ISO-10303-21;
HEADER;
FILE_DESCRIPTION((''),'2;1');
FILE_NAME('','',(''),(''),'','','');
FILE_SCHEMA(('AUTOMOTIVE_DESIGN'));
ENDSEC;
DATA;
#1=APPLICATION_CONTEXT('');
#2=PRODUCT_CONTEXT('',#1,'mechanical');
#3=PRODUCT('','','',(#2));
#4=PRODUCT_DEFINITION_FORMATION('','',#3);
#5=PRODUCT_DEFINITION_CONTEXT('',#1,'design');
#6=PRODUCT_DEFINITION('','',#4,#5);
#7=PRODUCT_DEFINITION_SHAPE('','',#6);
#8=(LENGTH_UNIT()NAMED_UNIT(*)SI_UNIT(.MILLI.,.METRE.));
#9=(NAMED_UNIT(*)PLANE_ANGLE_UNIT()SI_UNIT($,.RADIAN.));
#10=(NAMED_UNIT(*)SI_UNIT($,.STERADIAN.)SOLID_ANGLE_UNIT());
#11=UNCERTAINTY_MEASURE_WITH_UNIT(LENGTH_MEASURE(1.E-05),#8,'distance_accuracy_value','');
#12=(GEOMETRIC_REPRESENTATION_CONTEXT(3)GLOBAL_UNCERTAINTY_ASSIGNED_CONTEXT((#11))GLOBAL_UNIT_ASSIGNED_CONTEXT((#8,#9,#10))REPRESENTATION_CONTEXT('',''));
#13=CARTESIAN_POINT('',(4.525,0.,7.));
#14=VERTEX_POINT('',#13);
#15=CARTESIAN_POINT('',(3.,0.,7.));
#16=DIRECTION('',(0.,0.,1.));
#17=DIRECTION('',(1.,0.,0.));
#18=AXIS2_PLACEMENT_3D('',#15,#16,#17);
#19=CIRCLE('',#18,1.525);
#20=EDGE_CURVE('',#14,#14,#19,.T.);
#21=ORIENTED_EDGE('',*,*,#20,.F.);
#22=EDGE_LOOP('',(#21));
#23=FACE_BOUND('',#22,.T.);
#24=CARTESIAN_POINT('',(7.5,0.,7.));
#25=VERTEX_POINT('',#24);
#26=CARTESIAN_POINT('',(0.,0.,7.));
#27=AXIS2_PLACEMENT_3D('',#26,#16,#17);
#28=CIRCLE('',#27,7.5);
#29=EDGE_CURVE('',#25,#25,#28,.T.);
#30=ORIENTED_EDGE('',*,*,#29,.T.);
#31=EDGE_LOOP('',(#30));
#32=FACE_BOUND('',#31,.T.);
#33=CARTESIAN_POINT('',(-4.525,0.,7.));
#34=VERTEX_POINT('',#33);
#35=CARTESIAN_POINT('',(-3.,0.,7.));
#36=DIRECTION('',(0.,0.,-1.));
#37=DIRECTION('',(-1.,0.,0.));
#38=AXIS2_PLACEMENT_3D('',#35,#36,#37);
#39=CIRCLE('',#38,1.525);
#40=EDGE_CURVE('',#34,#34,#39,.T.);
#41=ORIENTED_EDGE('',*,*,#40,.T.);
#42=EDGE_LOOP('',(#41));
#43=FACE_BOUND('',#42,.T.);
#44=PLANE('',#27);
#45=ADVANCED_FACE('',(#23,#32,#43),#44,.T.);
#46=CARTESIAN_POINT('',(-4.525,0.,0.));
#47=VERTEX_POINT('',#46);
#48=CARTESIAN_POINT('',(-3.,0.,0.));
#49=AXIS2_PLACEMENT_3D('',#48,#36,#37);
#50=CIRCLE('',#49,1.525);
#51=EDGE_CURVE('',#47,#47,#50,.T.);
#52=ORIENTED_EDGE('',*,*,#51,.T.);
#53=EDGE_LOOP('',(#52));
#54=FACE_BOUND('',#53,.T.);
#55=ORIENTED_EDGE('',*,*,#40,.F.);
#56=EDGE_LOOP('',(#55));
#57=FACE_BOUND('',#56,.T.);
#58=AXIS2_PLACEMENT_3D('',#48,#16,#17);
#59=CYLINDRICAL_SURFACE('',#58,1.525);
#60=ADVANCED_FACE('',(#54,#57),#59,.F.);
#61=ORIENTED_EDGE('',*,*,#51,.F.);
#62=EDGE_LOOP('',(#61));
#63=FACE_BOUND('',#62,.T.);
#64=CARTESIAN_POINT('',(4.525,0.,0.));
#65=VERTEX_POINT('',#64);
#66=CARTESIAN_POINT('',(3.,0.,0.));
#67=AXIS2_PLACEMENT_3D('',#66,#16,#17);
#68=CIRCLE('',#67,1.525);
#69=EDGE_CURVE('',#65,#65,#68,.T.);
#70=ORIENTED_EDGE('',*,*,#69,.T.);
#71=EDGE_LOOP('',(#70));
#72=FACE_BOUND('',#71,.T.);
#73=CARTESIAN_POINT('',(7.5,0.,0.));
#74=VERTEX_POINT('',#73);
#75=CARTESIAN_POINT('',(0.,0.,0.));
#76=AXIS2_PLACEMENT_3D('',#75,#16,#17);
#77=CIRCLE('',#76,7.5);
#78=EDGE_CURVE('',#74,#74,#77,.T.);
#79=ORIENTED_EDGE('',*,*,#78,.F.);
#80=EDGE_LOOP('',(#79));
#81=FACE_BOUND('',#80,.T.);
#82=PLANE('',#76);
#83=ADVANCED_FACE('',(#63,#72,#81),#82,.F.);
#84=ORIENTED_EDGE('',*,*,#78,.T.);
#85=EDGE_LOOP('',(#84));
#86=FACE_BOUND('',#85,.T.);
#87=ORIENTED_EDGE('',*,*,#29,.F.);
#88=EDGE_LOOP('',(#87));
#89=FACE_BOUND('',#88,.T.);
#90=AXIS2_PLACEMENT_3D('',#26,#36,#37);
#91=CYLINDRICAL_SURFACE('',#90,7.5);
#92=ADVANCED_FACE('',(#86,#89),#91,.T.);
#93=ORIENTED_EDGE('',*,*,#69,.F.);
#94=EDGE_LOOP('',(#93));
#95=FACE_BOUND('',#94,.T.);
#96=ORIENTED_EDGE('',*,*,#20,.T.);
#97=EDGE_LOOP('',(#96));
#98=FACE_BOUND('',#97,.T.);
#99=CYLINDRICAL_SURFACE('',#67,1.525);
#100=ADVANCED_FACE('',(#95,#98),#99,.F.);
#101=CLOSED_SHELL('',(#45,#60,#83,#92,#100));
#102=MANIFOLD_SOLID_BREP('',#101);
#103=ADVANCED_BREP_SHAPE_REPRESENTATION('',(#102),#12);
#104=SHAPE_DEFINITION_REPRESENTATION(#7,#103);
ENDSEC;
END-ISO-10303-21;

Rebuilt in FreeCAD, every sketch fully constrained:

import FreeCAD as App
import Part
import Sketcher
from FreeCAD import Vector
Q = App.Units.Quantity

doc = App.newDocument("Part")
body = doc.addObject("PartDesign::Body", "Body")

sketch1 = body.newObject("Sketcher::SketchObject", "Sketch")
sketch1.AttachmentSupport = (doc.getObject("XY_Plane"), [""])
sketch1.MapMode = "FlatFace"
sketch1.addGeometry(Part.Circle(Vector(0, 0, 0), Vector(0, 0, 1), 8), False)
sketch1.addConstraint([
    Sketcher.Constraint("Coincident", 0, 3, -1, 1),
    Sketcher.Constraint("Diameter", 0, Q("15 mm")),
])
pad1 = body.newObject("PartDesign::Pad", "Pad")
pad1.Profile = sketch1
pad1.Length = 7

sketch2 = body.newObject("Sketcher::SketchObject", "Sketch001")
sketch2.AttachmentSupport = (doc.getObject("XY_Plane"), [""])
sketch2.MapMode = "FlatFace"
sketch2.AttachmentOffset = App.Placement(Vector(0, 0, 7), App.Rotation())
sketch2.addGeometry([
    Part.Circle(Vector(3, 0, 0), Vector(0, 0, 1), 1.5),
    Part.Circle(Vector(-3, 0, 0), Vector(0, 0, 1), 1.5),
], False)
sketch2.addConstraint([
    Sketcher.Constraint("Equal", 0, 1),
    Sketcher.Constraint("Symmetric", 0, 3, 1, 3, -1, 1),
    Sketcher.Constraint("PointOnObject", 0, 3, -1),
    Sketcher.Constraint("Diameter", 0, Q("3.05 mm")),
    Sketcher.Constraint("DistanceX", -1, 1, 0, 3, Q("3 mm")),
])
pocket1 = body.newObject("PartDesign::Pocket", "Pocket")
pocket1.Profile = sketch2
pocket1.Type = "ThroughAll"

doc.recompute()
